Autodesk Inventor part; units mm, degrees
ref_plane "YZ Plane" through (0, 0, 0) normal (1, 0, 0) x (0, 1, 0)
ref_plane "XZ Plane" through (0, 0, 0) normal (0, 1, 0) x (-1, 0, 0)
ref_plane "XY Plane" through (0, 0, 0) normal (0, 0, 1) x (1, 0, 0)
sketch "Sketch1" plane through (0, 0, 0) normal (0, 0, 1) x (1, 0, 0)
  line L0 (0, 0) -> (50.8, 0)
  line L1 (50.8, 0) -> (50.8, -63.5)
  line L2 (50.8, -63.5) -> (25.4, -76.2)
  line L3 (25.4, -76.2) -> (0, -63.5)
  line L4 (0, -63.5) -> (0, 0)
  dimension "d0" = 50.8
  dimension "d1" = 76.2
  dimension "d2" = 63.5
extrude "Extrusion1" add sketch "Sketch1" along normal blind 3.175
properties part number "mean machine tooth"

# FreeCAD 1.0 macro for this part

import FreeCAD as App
import Part
import Sketcher

V = App.Vector
Q = App.Units.Quantity


def add_polygon(sketch, points):
    """Adds a closed chain of lines whose ends are joined by coincident constraints."""
    first, n = sketch.GeometryCount, len(points)
    for a, b in zip(points, points[1:] + points[:1]):
        sketch.addGeometry(Part.LineSegment(App.Vector(*a, 0), App.Vector(*b, 0)), False)
    for i in range(n):
        sketch.addConstraint(Sketcher.Constraint("Coincident", first + i, 2, first + (i + 1) % n, 1))

doc = App.newDocument("Part")
body = doc.addObject("PartDesign::Body", "Body")

# Sketch on XY plane
sketch1 = doc.addObject("Sketcher::SketchObject", "Sketch")
body.addObject(sketch1)
sketch1.AttachmentSupport = (doc.XY_Plane, [""])
sketch1.MapMode = "FlatFace"
add_polygon(sketch1, [(51, 0), (0, 0), (0, -64), (25, -76), (51, -64)])  # lines 0-4
sketch1.addConstraint([
    Sketcher.Constraint("Horizontal", 0),
    Sketcher.Constraint("Vertical", 1),
    Sketcher.Constraint("Vertical", 4),
    Sketcher.Constraint("Coincident", 0, 2, -1, 1),
    Sketcher.Constraint("Horizontal", 1, 2, 3, 2),
    Sketcher.Constraint("Equal", 2, 3),
    Sketcher.Constraint("DistanceX", 0, 2, 0, 1, Q("2 in")),
    Sketcher.Constraint("DistanceY", 1, 2, 1, 1, Q("2.5 in")),
    Sketcher.Constraint("DistanceY", 2, 2, -1, 1, Q("3 in")),
])
pad1 = doc.addObject("PartDesign::Pad", "Pad")
body.addObject(pad1)
pad1.Profile = sketch1
pad1.Length = Q("0.125 in")

doc.recompute()
